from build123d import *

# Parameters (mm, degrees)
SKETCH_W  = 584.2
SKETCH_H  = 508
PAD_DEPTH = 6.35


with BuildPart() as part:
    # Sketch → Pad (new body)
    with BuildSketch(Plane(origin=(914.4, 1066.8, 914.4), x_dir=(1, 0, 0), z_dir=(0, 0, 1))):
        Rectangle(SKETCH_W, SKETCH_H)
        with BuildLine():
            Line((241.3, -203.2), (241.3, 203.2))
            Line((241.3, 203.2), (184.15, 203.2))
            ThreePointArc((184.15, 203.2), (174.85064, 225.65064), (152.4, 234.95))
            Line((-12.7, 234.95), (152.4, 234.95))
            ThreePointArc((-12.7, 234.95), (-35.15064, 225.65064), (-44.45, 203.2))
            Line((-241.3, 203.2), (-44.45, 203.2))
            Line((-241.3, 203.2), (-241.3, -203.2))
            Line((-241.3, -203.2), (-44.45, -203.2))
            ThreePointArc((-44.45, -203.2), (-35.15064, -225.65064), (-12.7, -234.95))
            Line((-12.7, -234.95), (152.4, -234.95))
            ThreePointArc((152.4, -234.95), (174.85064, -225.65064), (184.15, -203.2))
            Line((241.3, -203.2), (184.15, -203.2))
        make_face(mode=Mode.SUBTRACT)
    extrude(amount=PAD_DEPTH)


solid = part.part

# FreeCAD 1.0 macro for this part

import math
import FreeCAD as App
import Part
import Sketcher
Q = App.Units.Quantity


def add_polygon(sketch, points):
    """Adds a closed chain of lines whose ends are joined by coincident constraints."""
    first, n = sketch.GeometryCount, len(points)
    for a, b in zip(points, points[1:] + points[:1]):
        sketch.addGeometry(Part.LineSegment(App.Vector(*a, 0), App.Vector(*b, 0)), False)
    for i in range(n):
        sketch.addConstraint(Sketcher.Constraint("Coincident", first + i, 2, first + (i + 1) % n, 1))

doc = App.newDocument("Part")
body = doc.addObject("PartDesign::Body", "Body")

sketch1 = body.newObject("Sketcher::SketchObject", "Sketch")
sketch1.AttachmentSupport = (doc.getObject("XY_Plane"), [""])
sketch1.MapMode = "FlatFace"
sketch1.AttachmentOffset = App.Placement(App.Vector(0, 0, 36 * 25.4), App.Rotation())
add_polygon(sketch1, [(622, 1321), (622, 813), (1206, 813), (1206, 1321)])
sketch1.addGeometry(Part.LineSegment(App.Vector(1156, 1270, 0), App.Vector(1156, 864, 0)), False)
sketch1.addGeometry(Part.LineSegment(App.Vector(1156, 864, 0), App.Vector(1099, 864, 0)), False)
sketch1.addGeometry(Part.ArcOfCircle(Part.Circle(App.Vector(1067, 864, 0), App.Vector(0, 0, 1), 32), math.radians(-90), math.radians(0)), False)
sketch1.addGeometry(Part.LineSegment(App.Vector(1067, 832, 0), App.Vector(902, 832, 0)), False)
sketch1.addGeometry(Part.ArcOfCircle(Part.Circle(App.Vector(902, 864, 0), App.Vector(0, 0, 1), 32), math.radians(-180), math.radians(-90)), False)
sketch1.addGeometry(Part.LineSegment(App.Vector(870, 864, 0), App.Vector(673, 864, 0)), False)
sketch1.addGeometry(Part.LineSegment(App.Vector(673, 864, 0), App.Vector(673, 1270, 0)), False)
sketch1.addGeometry(Part.LineSegment(App.Vector(673, 1270, 0), App.Vector(870, 1270, 0)), False)
sketch1.addGeometry(Part.ArcOfCircle(Part.Circle(App.Vector(902, 1270, 0), App.Vector(0, 0, 1), 32), math.radians(90), math.radians(180)), False)
sketch1.addGeometry(Part.LineSegment(App.Vector(902, 1302, 0), App.Vector(1067, 1302, 0)), False)
sketch1.addGeometry(Part.ArcOfCircle(Part.Circle(App.Vector(1067, 1270, 0), App.Vector(0, 0, 1), 32), math.radians(0), math.radians(90)), False)
sketch1.addGeometry(Part.LineSegment(App.Vector(1099, 1270, 0), App.Vector(1156, 1270, 0)), False)
sketch1.addConstraint([
    Sketcher.Constraint("Coincident", 4, 2, 5, 1),
    Sketcher.Constraint("Coincident", 5, 2, 6, 2),
    Sketcher.Constraint("Tangent", 6, 1, 7, 1),
    Sketcher.Constraint("Tangent", 7, 2, 8, 2),
    Sketcher.Constraint("Coincident", 8, 1, 9, 1),
    Sketcher.Constraint("Coincident", 9, 2, 10, 1),
    Sketcher.Constraint("Coincident", 10, 2, 11, 1),
    Sketcher.Constraint("Coincident", 11, 2, 12, 2),
    Sketcher.Constraint("Tangent", 12, 1, 13, 1),
    Sketcher.Constraint("Tangent", 13, 2, 14, 2),
    Sketcher.Constraint("Coincident", 14, 1, 15, 1),
    Sketcher.Constraint("Coincident", 15, 2, 4, 1),
    Sketcher.Constraint("Vertical", 0),
    Sketcher.Constraint("Horizontal", 1),
    Sketcher.Constraint("Vertical", 2),
    Sketcher.Constraint("Horizontal", 3),
    Sketcher.Constraint("Vertical", 4),
    Sketcher.Constraint("Horizontal", 5),
    Sketcher.Constraint("Horizontal", 7),
    Sketcher.Constraint("Horizontal", 9),
    Sketcher.Constraint("Vertical", 10),
    Sketcher.Constraint("Horizontal", 11),
    Sketcher.Constraint("Horizontal", 13),
    Sketcher.Constraint("Horizontal", 15),
    Sketcher.Constraint("Equal", 6, 8),
    Sketcher.Constraint("Equal", 8, 12),
    Sketcher.Constraint("Equal", 12, 14),
    Sketcher.Constraint("Horizontal", 8, 3, 4, 2),
    Sketcher.Constraint("Horizontal", 5, 2, 8, 1),
    Sketcher.Constraint("Horizontal", 14, 3, 10, 2),
    Sketcher.Constraint("Horizontal", 11, 2, 14, 1),
    Sketcher.Constraint("Vertical", 8, 3, 12, 3),
    Sketcher.Constraint("Vertical", 6, 3, 14, 3),
    Sketcher.Constraint("DistanceX", 1, 1, 1, 2, Q("23 in")),
    Sketcher.Constraint("DistanceY", 0, 2, 0, 1, Q("20 in")),
    Sketcher.Constraint("DistanceY", 4, 2, 4, 1, Q("16 in")),
    Sketcher.Constraint("Radius", 6, Q("1.25 in")),
    Sketcher.Constraint("DistanceX", 7, 2, 7, 1, Q("6.5 in")),
    Sketcher.Constraint("DistanceX", -1, 1, 6, 3, Q("42 in")),
    Sketcher.Constraint("DistanceY", -1, 1, 6, 3, Q("34 in")),
    Sketcher.Constraint("DistanceY", -1, 1, 0, 2, Q("32 in")),
    Sketcher.Constraint("DistanceX", 0, 2, 8, 3, Q("11 in")),
    Sketcher.Constraint("DistanceX", 4, 2, 1, 2, Q("2 in")),
    Sketcher.Constraint("DistanceX", 0, 2, 9, 2, Q("2 in")),
])
pad1 = body.newObject("PartDesign::Pad", "Pad")
pad1.Profile = sketch1
pad1.Length = Q("0.25 in")

doc.recompute()
